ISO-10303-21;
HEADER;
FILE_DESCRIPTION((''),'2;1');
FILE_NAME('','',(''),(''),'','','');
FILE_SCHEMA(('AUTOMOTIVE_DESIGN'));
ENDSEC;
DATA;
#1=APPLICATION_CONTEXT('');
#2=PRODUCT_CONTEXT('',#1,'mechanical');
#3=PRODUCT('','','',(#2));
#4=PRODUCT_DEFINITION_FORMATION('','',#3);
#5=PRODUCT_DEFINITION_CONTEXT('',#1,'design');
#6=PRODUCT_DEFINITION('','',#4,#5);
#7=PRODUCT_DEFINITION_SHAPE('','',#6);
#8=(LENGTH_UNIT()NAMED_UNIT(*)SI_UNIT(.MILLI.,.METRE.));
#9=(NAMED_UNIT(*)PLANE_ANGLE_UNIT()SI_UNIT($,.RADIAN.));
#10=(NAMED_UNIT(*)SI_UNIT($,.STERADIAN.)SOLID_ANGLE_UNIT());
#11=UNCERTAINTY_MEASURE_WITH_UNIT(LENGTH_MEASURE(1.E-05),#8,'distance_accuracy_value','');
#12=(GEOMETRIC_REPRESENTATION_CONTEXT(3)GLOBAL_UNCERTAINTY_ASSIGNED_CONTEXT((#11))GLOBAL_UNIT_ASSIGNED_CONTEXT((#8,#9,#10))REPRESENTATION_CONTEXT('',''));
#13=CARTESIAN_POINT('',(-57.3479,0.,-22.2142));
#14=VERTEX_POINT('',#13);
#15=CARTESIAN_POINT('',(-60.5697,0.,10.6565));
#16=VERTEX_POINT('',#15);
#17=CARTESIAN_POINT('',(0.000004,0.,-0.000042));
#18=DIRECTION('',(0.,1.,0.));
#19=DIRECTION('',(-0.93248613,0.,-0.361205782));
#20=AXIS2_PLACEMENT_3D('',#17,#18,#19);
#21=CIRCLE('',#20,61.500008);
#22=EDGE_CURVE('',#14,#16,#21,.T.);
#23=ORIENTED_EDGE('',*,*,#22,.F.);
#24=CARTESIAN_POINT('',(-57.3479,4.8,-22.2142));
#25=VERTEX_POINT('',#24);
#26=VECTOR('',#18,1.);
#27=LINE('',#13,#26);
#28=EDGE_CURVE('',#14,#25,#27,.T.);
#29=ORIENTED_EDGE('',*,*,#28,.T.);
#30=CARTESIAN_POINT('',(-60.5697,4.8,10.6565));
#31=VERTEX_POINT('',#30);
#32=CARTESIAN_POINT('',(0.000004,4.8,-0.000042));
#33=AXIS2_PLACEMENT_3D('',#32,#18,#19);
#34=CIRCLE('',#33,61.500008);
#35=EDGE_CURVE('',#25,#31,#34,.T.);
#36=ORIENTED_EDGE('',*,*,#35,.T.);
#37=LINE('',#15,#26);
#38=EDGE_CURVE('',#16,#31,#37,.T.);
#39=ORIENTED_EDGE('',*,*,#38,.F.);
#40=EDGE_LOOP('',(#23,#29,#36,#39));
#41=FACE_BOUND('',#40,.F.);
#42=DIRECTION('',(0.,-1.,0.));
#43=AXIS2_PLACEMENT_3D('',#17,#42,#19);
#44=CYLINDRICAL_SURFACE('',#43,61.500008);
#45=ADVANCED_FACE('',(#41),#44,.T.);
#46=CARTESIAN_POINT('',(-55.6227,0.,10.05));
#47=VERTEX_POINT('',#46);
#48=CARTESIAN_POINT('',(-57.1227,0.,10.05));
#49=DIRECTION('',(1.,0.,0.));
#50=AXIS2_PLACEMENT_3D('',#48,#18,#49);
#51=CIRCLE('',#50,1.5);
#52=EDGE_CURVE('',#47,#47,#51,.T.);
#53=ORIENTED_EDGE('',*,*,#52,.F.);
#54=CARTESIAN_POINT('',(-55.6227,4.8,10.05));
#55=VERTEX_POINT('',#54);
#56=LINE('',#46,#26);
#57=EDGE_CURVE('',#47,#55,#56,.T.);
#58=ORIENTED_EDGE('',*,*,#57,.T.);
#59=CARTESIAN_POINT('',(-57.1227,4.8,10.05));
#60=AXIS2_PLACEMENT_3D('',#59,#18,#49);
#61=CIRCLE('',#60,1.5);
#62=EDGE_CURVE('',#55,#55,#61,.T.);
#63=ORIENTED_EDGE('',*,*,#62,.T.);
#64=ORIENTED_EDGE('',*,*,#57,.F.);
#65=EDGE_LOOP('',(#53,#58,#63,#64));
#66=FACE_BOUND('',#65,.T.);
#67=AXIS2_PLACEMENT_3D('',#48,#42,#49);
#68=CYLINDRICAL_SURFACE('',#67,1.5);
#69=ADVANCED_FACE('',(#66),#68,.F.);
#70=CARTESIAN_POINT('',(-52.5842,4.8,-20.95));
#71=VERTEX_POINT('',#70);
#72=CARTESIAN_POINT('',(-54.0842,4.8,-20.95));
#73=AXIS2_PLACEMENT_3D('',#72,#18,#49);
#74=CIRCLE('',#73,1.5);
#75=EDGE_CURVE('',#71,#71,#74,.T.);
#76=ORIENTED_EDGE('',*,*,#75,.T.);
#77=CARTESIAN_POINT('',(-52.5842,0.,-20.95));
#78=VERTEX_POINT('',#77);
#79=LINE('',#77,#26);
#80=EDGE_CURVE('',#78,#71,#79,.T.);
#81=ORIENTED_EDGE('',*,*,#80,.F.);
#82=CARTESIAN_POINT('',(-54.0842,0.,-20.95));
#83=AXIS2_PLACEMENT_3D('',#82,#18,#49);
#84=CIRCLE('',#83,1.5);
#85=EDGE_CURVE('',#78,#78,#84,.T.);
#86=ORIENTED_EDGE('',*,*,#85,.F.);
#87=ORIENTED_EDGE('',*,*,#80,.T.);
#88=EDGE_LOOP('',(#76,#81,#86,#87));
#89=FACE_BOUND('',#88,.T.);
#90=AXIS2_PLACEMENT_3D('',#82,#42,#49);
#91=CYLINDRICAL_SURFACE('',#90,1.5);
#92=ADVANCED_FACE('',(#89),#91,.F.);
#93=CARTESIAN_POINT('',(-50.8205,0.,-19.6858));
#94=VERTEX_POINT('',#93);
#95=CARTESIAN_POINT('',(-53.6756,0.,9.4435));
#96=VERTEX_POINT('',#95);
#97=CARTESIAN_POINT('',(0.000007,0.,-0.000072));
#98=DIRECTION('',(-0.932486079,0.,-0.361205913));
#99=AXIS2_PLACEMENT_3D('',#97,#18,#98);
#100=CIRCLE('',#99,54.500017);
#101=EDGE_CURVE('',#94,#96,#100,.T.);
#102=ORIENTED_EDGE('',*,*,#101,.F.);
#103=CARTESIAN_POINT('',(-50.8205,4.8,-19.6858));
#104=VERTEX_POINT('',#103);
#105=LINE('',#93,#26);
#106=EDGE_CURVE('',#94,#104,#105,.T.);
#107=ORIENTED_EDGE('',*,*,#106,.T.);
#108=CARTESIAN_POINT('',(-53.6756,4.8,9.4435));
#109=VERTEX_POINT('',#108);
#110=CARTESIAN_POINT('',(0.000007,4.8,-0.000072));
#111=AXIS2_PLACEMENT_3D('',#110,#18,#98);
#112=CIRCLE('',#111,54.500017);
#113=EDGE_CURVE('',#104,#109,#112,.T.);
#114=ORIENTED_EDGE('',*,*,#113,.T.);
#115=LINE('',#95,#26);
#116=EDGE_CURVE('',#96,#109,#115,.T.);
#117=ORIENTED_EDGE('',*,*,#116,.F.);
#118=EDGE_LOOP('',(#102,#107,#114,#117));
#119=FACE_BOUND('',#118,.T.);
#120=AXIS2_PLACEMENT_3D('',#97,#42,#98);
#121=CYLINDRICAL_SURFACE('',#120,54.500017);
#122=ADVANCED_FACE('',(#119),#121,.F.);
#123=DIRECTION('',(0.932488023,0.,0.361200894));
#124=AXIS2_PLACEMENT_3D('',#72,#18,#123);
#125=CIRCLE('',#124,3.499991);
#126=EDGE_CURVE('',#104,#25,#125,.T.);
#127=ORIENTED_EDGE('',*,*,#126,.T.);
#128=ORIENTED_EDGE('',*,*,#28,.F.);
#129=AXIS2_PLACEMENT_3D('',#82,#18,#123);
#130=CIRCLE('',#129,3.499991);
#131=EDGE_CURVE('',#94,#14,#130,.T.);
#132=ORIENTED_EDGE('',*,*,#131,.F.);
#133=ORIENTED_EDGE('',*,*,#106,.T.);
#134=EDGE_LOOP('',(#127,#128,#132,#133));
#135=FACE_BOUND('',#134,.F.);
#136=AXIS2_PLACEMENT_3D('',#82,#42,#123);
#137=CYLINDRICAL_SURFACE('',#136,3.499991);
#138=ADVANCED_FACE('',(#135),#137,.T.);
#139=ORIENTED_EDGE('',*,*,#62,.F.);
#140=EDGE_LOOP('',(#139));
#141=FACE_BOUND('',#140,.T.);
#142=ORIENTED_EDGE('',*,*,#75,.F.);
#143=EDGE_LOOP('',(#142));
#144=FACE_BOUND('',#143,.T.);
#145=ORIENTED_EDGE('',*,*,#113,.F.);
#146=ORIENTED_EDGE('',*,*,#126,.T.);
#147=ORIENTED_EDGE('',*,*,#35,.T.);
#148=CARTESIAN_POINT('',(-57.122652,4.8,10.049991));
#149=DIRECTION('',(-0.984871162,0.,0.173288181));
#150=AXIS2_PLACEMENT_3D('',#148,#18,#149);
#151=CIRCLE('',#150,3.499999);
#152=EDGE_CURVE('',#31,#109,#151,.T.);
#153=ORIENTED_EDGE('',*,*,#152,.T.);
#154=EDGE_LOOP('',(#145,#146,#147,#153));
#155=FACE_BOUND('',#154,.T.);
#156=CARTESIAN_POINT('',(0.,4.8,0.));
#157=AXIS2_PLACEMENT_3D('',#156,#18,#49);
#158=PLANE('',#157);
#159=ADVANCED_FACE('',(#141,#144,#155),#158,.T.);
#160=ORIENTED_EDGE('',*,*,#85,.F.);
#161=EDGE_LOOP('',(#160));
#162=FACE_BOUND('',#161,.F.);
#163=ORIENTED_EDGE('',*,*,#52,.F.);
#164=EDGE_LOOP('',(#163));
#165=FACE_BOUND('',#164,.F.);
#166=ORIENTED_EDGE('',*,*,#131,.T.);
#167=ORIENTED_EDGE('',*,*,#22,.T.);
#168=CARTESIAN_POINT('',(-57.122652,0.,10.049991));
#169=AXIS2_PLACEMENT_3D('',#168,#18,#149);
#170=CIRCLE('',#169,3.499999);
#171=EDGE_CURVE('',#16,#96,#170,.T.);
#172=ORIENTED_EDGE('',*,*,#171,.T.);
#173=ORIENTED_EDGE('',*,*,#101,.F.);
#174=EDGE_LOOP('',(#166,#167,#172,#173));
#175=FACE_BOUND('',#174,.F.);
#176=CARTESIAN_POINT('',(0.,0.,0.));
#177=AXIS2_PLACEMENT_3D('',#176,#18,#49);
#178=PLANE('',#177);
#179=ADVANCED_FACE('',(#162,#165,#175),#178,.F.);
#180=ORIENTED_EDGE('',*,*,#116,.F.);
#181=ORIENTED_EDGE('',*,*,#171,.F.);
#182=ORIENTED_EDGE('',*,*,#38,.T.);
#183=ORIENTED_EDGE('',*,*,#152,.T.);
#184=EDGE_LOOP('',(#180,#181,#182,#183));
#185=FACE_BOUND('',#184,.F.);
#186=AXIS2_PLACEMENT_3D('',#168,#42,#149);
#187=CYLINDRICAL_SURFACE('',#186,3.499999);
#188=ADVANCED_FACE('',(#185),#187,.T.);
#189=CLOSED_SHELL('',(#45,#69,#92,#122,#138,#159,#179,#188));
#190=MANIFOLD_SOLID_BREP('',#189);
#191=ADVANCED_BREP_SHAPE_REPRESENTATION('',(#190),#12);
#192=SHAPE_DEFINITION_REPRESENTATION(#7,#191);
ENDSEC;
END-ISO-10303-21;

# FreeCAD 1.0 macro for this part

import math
import FreeCAD as App
import Part
import Sketcher
from FreeCAD import Vector
Q = App.Units.Quantity

doc = App.newDocument("Part")
body = doc.addObject("PartDesign::Body", "Body")

# Sketch on XZ plane
sketch1 = body.newObject("Sketcher::SketchObject", "Sketch")
sketch1.AttachmentSupport = (doc.getObject("XZ_Plane"), [""])
sketch1.MapMode = "FlatFace"
sketch1.addGeometry(Part.ArcOfCircle(Part.Circle(Vector(0, 0, 0), Vector(0, 0, 1), 54.499956), math.radians(170.021697), math.radians(201.174347)), False)
sketch1.addGeometry(Part.ArcOfCircle(Part.Circle(Vector(-54.0842, -20.95, 0), Vector(0, 0, 1), 3.499991), math.radians(-158.826035), math.radians(21.173965)), False)
sketch1.addGeometry(Part.ArcOfCircle(Part.Circle(Vector(0, 0, 0), Vector(0, 0, 1), 61.499983), math.radians(170.021627), math.radians(201.174303)), False)
sketch1.addGeometry(Part.ArcOfCircle(Part.Circle(Vector(-57.1227, 10.05, 0), Vector(0, 0, 1), 3.500002), math.radians(-9.978773), math.radians(170.020944)), False)
sketch1.addGeometry(Part.Circle(Vector(-57.1227, 10.05, 0), Vector(0, 0, 1), 1.5), False)
sketch1.addGeometry(Part.Circle(Vector(-54.0842, -20.95, 0), Vector(0, 0, 1), 1.5), False)
sketch1.addConstraint(Sketcher.Constraint("Tangent", 0, 2, 1, 2))
sketch1.addConstraint(Sketcher.Constraint("Tangent", 1, 1, 2, 2))
sketch1.addConstraint(Sketcher.Constraint("Tangent", 2, 1, 3, 2))
sketch1.addConstraint(Sketcher.Constraint("Tangent", 3, 1, 0, 1))
sketch1.addConstraint(Sketcher.Constraint("Coincident", 0, 3, -1, 1))
sketch1.addConstraint(Sketcher.Constraint("Coincident", 2, 3, -1, 1))
sketch1.addConstraint(Sketcher.Constraint("Coincident", 4, 3, 3, 3))
sketch1.addConstraint(Sketcher.Constraint("Coincident", 5, 3, 1, 3))
sketch1.addConstraint(Sketcher.Constraint("Equal", 4, 5))
sketch1.addConstraint(Sketcher.Constraint("Diameter", 4, Q("3 mm")))
sketch1.addConstraint(Sketcher.Constraint("Radius", 1, Q("3.5 mm")))
sketch1.addConstraint(Sketcher.Constraint("Radius", 0, Q("54.5 mm")))
sketch1.addConstraint(Sketcher.Constraint("DistanceY", 1, 3, 3, 3, Q("31 mm")))
sketch1.addConstraint(Sketcher.Constraint("DistanceY", 1, 3, -1, 1, Q("20.95 mm")))
pad1 = body.newObject("PartDesign::Pad", "Pad")
pad1.Profile = sketch1
pad1.Length = 4.8
pad1.Reversed = True

doc.recompute()
